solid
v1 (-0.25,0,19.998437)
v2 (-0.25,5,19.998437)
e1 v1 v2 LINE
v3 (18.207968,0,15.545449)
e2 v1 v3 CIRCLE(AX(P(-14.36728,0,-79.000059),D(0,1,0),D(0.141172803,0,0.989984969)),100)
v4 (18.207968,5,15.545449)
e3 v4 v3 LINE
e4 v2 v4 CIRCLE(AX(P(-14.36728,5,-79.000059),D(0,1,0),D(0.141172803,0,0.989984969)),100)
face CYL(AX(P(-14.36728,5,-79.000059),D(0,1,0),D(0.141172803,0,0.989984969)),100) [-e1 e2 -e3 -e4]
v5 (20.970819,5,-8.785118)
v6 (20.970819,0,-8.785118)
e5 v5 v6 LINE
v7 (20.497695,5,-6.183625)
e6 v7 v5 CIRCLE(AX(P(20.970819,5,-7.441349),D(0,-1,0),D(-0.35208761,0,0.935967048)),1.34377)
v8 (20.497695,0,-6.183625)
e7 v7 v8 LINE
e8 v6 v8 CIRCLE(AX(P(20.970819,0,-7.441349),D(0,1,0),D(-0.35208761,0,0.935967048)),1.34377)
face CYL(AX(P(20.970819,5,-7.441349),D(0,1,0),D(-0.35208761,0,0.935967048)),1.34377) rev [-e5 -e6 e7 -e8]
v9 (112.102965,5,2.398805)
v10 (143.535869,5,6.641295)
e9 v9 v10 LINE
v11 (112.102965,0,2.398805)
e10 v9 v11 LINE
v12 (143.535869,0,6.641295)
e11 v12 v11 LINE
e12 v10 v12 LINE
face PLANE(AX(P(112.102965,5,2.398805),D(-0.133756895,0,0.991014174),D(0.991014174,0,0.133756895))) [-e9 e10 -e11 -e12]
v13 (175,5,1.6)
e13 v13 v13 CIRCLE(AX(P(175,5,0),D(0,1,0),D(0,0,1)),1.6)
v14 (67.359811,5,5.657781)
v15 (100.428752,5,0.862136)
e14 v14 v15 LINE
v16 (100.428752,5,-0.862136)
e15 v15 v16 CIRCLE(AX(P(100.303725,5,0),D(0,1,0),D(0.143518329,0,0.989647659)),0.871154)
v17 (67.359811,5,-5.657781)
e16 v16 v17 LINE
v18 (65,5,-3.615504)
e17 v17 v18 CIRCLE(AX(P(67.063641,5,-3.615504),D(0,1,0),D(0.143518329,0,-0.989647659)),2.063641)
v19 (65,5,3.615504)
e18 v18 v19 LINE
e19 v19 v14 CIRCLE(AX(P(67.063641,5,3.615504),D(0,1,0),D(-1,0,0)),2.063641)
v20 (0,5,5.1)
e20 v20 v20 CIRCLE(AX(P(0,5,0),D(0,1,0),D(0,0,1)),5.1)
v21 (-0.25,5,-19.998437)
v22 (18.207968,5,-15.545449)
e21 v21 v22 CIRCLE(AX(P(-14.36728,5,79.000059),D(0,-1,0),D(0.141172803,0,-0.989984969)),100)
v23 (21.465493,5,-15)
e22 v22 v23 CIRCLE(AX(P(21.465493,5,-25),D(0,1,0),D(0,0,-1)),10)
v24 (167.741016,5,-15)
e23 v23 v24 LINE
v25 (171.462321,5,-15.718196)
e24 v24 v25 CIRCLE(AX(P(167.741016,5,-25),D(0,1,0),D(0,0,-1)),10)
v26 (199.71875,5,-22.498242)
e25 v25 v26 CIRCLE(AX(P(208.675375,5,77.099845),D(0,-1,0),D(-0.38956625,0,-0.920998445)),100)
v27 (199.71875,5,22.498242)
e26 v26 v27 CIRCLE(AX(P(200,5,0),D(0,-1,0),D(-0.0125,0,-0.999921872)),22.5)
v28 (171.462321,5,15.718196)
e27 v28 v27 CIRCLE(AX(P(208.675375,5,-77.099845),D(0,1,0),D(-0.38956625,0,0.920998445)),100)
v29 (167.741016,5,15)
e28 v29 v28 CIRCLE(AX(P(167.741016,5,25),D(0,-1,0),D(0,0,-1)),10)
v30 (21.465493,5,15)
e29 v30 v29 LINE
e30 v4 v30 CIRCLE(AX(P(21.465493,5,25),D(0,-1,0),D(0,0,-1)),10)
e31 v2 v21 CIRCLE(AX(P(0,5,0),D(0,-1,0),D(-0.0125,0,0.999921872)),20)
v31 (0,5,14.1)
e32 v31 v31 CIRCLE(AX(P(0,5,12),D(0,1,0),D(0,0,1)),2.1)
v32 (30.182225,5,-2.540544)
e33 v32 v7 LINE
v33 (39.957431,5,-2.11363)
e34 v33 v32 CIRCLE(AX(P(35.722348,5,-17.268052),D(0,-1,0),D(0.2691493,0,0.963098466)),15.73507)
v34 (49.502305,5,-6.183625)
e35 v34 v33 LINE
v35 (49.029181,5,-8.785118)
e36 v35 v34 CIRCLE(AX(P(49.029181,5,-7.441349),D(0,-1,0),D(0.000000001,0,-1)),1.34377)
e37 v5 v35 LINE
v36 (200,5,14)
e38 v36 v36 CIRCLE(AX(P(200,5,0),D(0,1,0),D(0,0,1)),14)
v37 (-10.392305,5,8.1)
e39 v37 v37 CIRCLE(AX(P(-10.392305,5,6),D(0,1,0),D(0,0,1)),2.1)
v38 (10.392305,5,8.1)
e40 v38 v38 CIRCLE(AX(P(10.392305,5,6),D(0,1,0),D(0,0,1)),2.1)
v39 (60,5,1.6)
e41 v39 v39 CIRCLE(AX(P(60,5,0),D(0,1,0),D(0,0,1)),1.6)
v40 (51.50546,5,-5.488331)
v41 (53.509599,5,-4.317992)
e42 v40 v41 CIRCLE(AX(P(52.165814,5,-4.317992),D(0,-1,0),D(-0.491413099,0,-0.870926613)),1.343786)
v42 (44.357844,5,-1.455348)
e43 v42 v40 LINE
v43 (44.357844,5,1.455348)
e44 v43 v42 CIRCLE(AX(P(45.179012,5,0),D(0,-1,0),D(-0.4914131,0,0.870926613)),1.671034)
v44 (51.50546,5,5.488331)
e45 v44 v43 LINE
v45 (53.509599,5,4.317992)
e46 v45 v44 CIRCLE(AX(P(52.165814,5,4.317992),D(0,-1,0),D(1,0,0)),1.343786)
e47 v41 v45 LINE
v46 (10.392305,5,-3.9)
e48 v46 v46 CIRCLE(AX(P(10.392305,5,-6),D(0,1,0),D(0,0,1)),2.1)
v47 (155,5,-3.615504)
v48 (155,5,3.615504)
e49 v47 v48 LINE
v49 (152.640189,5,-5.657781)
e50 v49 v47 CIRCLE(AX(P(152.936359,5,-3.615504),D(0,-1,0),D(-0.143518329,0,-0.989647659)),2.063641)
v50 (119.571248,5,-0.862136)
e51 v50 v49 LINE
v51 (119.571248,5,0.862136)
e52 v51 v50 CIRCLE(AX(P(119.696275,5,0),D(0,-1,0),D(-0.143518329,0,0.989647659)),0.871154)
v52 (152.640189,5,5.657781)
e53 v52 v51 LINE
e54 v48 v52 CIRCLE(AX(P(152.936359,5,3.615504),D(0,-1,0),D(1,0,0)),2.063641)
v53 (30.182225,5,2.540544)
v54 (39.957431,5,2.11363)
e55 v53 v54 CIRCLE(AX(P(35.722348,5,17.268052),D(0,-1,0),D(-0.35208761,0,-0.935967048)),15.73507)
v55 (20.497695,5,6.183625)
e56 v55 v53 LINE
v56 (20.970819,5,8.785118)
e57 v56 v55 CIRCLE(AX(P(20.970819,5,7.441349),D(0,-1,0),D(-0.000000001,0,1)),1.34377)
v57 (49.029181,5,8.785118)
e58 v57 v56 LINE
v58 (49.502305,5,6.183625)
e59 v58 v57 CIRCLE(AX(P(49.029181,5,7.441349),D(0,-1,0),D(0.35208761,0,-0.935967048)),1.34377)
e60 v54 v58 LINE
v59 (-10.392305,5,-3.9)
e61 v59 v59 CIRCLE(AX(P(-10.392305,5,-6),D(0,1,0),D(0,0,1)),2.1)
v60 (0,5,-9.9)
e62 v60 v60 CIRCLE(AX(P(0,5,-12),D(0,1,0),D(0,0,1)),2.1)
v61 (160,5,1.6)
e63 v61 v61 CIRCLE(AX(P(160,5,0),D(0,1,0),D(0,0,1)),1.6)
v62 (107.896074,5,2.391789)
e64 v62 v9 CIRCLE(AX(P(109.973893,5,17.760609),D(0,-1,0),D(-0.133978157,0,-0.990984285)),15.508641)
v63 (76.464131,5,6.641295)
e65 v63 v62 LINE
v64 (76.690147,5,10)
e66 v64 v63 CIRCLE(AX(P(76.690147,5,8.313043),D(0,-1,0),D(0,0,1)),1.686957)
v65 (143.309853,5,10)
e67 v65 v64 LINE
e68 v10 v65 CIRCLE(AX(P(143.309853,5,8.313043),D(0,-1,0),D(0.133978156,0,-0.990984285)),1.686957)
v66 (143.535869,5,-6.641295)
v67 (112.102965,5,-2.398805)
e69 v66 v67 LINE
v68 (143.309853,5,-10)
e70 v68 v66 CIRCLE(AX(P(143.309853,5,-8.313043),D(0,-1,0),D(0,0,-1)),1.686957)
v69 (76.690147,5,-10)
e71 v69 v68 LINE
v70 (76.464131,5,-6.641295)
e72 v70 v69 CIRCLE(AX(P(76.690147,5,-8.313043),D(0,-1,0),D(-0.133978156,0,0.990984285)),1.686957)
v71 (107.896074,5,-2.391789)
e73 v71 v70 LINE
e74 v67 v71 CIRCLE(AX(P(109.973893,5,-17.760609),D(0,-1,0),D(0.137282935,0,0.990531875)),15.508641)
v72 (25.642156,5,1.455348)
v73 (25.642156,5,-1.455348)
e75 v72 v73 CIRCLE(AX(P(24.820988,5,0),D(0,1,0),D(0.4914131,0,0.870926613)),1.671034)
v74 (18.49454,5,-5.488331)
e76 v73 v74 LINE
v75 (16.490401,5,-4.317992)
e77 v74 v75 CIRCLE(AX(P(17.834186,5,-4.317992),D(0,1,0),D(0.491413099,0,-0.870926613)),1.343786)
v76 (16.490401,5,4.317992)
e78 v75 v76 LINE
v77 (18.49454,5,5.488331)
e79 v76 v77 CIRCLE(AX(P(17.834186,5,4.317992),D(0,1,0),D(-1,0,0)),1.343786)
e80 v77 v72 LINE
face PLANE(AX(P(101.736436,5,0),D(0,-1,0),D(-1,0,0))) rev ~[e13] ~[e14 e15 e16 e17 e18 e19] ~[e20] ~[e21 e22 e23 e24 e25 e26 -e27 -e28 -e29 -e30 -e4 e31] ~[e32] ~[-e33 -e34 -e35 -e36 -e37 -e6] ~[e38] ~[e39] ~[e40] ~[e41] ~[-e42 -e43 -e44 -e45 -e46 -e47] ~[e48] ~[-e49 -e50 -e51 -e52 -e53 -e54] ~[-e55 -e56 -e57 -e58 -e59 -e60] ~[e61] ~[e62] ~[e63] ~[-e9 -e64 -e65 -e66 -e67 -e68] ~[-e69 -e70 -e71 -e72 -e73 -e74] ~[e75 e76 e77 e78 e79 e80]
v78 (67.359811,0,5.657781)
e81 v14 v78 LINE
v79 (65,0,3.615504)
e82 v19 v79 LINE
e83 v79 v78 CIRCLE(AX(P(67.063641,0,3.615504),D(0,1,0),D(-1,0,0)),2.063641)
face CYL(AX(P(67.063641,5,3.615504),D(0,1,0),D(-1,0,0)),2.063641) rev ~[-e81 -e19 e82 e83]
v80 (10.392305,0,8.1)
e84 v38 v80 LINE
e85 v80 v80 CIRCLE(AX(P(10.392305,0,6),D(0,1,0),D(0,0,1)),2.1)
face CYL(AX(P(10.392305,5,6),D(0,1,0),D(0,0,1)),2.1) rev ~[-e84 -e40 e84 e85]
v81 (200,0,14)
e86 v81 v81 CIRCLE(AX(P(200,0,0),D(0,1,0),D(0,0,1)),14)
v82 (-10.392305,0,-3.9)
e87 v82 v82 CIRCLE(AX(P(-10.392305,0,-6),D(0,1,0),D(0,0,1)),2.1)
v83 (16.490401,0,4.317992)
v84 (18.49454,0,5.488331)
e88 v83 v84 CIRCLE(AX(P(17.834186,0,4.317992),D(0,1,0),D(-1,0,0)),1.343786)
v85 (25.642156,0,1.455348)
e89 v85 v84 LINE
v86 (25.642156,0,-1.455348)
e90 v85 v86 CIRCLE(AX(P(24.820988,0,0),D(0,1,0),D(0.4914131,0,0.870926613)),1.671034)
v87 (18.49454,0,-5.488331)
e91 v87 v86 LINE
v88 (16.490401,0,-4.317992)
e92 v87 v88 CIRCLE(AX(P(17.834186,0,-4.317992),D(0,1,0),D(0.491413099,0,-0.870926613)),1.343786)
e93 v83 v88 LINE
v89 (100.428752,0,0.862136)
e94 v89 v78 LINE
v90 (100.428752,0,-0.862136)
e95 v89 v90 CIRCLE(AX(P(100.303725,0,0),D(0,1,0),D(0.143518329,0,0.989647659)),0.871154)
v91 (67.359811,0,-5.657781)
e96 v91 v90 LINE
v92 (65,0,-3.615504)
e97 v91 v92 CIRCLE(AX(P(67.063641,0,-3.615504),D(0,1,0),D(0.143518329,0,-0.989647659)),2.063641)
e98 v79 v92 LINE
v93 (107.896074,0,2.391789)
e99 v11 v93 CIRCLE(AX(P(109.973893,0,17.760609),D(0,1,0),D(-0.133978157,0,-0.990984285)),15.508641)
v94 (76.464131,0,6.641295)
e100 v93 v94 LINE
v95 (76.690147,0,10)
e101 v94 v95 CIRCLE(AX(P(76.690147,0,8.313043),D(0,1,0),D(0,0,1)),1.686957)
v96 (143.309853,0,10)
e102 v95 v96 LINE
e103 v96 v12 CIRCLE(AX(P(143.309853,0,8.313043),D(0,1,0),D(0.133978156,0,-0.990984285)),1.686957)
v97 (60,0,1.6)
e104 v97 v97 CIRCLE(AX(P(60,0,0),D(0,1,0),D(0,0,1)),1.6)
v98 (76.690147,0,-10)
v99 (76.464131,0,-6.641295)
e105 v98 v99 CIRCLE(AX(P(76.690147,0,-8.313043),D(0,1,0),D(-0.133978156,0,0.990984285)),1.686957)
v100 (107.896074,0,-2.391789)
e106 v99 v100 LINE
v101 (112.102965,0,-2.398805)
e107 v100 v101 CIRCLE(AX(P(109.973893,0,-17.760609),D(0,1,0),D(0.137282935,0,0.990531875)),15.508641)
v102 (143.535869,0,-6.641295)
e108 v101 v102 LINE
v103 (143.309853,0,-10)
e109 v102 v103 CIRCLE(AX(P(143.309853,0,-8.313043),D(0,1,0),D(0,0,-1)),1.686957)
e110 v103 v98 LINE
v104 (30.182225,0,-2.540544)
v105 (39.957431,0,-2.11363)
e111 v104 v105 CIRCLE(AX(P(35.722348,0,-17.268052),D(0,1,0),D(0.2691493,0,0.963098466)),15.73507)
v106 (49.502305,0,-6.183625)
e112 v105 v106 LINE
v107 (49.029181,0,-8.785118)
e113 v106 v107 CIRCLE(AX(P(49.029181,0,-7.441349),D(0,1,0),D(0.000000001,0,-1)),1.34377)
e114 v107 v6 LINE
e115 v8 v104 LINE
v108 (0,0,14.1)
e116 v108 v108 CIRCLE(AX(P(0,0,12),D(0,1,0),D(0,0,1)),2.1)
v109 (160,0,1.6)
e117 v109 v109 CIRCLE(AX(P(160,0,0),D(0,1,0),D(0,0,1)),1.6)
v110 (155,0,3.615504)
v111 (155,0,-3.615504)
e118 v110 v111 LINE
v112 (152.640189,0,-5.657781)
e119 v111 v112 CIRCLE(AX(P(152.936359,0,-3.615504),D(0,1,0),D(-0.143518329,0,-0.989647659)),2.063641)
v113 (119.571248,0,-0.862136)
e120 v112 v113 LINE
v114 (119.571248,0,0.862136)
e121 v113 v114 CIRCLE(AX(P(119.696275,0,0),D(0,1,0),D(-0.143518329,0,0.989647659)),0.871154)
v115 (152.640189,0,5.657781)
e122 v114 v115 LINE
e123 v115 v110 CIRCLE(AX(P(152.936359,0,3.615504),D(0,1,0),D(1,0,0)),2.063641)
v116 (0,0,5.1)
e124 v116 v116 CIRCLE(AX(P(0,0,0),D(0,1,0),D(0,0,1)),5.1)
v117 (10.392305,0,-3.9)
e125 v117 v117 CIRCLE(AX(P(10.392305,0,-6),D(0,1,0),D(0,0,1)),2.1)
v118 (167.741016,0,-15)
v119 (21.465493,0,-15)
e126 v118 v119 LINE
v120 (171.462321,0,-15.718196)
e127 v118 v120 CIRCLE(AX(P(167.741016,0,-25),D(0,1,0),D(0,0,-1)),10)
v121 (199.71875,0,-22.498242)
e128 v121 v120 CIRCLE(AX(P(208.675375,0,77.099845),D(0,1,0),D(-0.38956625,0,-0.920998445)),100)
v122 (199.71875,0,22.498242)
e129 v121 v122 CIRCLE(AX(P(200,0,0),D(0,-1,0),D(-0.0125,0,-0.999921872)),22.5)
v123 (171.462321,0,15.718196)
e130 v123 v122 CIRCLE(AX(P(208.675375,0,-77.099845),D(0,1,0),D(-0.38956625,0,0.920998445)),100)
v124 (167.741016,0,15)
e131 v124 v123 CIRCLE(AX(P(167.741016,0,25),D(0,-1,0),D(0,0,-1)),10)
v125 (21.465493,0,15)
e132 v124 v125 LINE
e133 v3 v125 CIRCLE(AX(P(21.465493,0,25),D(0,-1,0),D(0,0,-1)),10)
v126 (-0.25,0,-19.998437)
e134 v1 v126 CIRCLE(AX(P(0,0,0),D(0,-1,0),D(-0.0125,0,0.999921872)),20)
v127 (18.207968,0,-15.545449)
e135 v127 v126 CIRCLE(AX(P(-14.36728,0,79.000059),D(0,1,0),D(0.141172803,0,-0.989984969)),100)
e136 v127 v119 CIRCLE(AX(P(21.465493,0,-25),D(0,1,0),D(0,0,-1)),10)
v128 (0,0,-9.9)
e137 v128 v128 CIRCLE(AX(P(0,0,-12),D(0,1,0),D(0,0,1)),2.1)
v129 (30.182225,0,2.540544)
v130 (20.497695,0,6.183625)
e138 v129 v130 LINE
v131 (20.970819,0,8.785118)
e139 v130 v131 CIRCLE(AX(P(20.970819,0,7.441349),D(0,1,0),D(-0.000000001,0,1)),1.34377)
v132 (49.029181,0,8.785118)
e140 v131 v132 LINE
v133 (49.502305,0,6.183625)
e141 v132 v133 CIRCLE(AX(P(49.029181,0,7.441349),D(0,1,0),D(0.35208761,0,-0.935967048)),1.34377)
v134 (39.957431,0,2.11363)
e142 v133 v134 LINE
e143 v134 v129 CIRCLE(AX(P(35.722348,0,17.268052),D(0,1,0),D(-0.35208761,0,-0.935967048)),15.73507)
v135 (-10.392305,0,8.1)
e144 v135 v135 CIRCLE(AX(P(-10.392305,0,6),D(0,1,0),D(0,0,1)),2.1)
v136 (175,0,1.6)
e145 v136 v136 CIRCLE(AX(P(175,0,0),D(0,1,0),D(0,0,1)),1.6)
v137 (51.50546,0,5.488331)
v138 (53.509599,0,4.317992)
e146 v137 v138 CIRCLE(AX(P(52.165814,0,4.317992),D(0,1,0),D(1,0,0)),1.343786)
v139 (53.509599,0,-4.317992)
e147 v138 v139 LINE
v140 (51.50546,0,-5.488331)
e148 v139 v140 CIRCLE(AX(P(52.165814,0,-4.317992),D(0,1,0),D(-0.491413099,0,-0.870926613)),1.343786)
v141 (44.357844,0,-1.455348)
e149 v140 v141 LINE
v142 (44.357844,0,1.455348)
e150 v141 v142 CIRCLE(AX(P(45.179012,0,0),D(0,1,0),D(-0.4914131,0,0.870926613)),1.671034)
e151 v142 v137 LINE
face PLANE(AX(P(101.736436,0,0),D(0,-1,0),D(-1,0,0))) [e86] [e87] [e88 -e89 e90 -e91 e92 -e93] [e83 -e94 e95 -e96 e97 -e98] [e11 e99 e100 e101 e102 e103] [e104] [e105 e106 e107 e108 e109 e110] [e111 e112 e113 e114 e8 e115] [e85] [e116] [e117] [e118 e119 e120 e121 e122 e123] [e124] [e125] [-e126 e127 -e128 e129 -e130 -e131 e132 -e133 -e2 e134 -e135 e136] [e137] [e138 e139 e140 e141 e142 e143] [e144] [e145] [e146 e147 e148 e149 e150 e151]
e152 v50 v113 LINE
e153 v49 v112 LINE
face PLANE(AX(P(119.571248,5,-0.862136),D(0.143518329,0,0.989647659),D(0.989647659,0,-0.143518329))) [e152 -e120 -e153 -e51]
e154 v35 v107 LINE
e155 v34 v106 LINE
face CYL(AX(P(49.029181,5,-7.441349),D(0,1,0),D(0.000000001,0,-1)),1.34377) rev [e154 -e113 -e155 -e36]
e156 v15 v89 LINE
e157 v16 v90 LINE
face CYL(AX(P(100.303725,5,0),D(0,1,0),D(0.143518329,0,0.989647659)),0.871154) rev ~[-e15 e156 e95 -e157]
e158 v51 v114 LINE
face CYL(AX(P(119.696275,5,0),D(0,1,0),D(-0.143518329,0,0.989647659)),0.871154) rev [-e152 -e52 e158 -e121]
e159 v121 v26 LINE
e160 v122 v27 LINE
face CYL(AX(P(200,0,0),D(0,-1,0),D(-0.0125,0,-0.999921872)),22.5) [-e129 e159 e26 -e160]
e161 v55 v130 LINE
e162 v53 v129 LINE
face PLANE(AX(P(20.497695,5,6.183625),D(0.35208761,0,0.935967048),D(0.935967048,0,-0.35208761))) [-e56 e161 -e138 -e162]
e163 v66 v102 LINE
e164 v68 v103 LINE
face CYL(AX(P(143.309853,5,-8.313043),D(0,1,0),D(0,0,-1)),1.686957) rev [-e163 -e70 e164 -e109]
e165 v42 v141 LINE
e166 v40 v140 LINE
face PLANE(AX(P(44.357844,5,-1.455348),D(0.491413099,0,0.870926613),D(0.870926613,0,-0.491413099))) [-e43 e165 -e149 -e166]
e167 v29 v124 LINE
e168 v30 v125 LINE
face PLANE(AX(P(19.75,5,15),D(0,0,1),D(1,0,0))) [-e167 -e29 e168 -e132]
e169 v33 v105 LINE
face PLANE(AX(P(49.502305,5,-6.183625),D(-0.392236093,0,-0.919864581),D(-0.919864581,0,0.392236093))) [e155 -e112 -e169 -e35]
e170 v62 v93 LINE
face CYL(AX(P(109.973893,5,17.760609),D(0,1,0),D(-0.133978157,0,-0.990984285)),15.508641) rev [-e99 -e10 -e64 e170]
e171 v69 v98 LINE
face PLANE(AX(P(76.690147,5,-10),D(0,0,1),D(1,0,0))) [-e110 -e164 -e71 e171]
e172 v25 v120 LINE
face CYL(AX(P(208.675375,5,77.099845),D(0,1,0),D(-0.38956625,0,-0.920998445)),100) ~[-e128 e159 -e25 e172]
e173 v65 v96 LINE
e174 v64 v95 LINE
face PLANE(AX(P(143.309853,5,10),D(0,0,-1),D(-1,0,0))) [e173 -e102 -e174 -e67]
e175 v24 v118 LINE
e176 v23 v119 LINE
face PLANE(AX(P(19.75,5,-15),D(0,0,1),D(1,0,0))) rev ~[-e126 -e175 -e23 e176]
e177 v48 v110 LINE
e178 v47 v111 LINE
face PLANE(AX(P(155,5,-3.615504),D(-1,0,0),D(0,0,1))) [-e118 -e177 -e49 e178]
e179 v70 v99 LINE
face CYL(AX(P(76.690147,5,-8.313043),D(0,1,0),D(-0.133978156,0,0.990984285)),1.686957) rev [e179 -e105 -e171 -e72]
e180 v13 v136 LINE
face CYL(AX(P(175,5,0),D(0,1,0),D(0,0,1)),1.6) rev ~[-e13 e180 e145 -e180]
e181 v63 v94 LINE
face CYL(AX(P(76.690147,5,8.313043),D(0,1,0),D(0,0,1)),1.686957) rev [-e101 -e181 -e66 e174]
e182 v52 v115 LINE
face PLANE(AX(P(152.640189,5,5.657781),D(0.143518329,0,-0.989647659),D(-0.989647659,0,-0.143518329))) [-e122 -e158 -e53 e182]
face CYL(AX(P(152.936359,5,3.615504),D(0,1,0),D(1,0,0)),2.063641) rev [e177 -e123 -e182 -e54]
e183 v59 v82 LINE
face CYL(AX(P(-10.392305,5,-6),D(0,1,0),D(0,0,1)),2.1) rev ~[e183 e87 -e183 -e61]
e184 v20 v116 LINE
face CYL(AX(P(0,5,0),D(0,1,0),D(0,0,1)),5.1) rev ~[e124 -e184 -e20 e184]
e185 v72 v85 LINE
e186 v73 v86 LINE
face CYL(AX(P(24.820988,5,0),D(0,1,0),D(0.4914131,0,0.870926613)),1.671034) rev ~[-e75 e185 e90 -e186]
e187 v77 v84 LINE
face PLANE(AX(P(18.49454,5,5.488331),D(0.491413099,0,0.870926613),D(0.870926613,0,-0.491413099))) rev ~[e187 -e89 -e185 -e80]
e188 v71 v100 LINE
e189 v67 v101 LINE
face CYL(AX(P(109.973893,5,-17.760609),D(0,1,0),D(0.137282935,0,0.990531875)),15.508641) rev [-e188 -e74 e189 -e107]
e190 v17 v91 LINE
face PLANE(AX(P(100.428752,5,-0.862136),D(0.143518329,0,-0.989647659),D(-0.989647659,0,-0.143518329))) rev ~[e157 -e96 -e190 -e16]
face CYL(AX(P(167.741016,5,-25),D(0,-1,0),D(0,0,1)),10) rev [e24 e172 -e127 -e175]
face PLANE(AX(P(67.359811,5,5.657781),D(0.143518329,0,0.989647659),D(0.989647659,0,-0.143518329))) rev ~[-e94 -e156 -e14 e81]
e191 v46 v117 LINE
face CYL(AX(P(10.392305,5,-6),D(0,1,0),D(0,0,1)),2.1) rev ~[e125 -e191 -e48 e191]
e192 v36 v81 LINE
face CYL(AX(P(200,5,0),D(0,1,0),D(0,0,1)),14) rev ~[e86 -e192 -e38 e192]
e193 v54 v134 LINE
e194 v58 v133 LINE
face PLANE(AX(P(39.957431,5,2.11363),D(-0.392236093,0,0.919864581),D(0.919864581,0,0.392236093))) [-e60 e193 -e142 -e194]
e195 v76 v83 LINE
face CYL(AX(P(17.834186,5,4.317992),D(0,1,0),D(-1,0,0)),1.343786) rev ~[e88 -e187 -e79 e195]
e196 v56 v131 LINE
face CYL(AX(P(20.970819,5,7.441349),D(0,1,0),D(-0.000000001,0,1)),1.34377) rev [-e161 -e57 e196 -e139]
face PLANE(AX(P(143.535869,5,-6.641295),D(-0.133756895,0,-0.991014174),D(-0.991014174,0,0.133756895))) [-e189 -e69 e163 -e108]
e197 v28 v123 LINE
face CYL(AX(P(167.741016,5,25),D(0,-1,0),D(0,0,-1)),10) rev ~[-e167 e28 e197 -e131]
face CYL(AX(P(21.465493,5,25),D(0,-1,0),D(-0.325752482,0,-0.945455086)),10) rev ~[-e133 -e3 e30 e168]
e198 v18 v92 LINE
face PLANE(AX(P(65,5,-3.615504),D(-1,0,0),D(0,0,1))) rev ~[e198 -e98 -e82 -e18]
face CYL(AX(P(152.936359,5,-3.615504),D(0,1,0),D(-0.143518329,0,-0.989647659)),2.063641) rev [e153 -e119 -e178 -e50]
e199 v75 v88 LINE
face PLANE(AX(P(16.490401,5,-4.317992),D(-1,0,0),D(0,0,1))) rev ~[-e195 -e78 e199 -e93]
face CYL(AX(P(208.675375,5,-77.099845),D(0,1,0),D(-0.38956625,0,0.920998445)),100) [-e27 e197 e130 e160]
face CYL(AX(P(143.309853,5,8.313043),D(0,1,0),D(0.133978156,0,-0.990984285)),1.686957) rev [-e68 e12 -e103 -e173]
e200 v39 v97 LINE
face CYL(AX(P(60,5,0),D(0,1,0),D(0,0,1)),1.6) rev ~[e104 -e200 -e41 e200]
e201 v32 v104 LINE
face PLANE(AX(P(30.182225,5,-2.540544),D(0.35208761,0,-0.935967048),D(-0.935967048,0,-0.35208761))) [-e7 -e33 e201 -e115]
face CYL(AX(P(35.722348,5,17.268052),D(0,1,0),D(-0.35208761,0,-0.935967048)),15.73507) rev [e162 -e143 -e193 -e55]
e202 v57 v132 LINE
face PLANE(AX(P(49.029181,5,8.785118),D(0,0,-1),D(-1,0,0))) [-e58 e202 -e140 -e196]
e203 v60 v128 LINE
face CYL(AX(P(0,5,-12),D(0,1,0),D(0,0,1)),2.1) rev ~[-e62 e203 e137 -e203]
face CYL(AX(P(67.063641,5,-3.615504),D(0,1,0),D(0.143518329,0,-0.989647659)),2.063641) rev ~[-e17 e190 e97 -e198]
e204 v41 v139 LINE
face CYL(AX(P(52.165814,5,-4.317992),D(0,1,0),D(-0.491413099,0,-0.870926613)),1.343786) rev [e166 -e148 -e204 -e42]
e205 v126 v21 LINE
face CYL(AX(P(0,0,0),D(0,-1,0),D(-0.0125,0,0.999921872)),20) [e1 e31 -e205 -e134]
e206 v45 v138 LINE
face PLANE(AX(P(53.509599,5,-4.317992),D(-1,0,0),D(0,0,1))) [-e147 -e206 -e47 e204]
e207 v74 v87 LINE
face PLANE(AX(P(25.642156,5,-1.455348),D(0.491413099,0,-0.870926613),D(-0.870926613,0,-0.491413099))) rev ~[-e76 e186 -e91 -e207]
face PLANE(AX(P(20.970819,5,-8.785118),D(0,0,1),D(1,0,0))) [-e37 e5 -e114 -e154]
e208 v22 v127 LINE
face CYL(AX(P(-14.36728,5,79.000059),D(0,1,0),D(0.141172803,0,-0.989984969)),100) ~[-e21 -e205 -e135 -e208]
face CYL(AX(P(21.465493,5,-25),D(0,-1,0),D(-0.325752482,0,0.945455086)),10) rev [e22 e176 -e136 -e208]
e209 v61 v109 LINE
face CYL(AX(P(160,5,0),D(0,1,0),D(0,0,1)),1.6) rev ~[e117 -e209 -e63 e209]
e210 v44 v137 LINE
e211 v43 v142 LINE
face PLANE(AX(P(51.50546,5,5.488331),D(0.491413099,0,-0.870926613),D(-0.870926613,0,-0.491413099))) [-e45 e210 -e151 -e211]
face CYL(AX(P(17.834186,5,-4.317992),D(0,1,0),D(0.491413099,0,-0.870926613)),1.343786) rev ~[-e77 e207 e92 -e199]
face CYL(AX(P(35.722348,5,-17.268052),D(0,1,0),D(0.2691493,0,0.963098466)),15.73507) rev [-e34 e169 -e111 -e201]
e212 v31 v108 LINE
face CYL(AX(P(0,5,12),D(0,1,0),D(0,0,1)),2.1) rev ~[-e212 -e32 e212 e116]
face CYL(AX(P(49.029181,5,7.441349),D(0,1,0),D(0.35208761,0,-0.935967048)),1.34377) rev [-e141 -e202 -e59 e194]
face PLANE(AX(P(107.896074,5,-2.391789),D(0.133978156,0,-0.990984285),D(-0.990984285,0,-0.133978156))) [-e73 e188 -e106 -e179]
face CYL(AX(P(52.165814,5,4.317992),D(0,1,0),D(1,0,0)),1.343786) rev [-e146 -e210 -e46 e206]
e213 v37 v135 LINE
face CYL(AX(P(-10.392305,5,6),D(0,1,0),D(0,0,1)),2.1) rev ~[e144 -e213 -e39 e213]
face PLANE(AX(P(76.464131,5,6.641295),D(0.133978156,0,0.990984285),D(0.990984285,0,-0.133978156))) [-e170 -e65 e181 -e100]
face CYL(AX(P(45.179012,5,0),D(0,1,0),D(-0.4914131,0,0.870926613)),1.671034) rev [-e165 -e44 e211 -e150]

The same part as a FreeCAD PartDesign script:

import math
import FreeCAD as App
import Part
import Sketcher

V = App.Vector


def edges_at(feature, points):
    """Names of the edges that pass closest to the given points."""
    edges = feature.Shape.Edges
    near = lambda p: min(range(len(edges)), key=lambda i: edges[i].distToShape(Part.Vertex(*p))[0])
    return sorted({f"Edge{near(p) + 1}" for p in points})

doc = App.newDocument("Part")
body = doc.addObject("PartDesign::Body", "Body")

# Sketch on XZ plane
sketch1 = body.newObject("Sketcher::SketchObject", "Sketch")
sketch1.AttachmentSupport = (doc.getObject("XZ_Plane"), [""])
sketch1.MapMode = "FlatFace"
sketch1.addGeometry(Part.LineSegment(V(200, -22, 0), V(0, -20, 0)), False)
sketch1.addGeometry(Part.ArcOfCircle(Part.Circle(V(0, 0, 0), V(0, 0, 1), 20), math.radians(91), math.radians(269)), False)
sketch1.addGeometry(Part.LineSegment(V(0, 20, 0), V(200, 22, 0)), False)
sketch1.addGeometry(Part.ArcOfCircle(Part.Circle(V(200, 0, 0), V(0, 0, 1), 22), math.radians(-91), math.radians(91)), False)
sketch1.addConstraint(Sketcher.Constraint("Tangent", 0, 2, 1, 2))
sketch1.addConstraint(Sketcher.Constraint("Tangent", 1, 1, 2, 1))
sketch1.addConstraint(Sketcher.Constraint("Tangent", 2, 2, 3, 2))
sketch1.addConstraint(Sketcher.Constraint("Tangent", 3, 1, 0, 1))
sketch1.addConstraint(Sketcher.Constraint("Coincident", 1, 3, -1, 1))
sketch1.addConstraint(Sketcher.Constraint("PointOnObject", 3, 3, -1))
sketch1.addConstraint(Sketcher.Constraint("Radius", 1, 20.0))
sketch1.addConstraint(Sketcher.Constraint("Radius", 3, 22.5))
sketch1.addConstraint(Sketcher.Constraint("DistanceX", -1, 1, 3, 3, 200.0))
pad1 = body.newObject("PartDesign::Pad", "Pad")
pad1.Profile = sketch1
pad1.Length = 5
pad1.Reversed = True

# Sketch on XZ plane
sketch2 = body.newObject("Sketcher::SketchObject", "Sketch001")
sketch2.AttachmentSupport = (doc.getObject("XZ_Plane"), [""])
sketch2.MapMode = "FlatFace"
sketch2.AttachmentOffset = App.Placement(V(0, 0, -5), App.Rotation())
sketch2.addGeometry(Part.Circle(V(0, 0, 0), V(0, 0, 1), 5), False)
sketch2.addConstraint(Sketcher.Constraint("Coincident", 0, 3, -1, 1))
sketch2.addConstraint(Sketcher.Constraint("Diameter", 0, 10.2))
pocket1 = body.newObject("PartDesign::Pocket", "Pocket")
pocket1.Profile = sketch2
pocket1.Length = 10
pocket1.Reversed = True

# Sketch on XZ plane
sketch3 = body.newObject("Sketcher::SketchObject", "Sketch002")
sketch3.AttachmentSupport = (doc.getObject("XZ_Plane"), [""])
sketch3.MapMode = "FlatFace"
sketch3.AttachmentOffset = App.Placement(V(0, 0, -5), App.Rotation())
sketch3.addGeometry(Part.Circle(V(200, 0, 0), V(0, 0, 1), 14), False)
sketch3.addConstraint(Sketcher.Constraint("PointOnObject", 0, 3, -1))
sketch3.addConstraint(Sketcher.Constraint("Diameter", 0, 28.0))
sketch3.addConstraint(Sketcher.Constraint("DistanceX", -1, 1, 0, 3, 200.0))
pocket2 = body.newObject("PartDesign::Pocket", "Pocket001")
pocket2.Profile = sketch3
pocket2.Length = 10
pocket2.Reversed = True

# Sketch on XZ plane
sketch4 = body.newObject("Sketcher::SketchObject", "Sketch003")
sketch4.AttachmentSupport = (doc.getObject("XZ_Plane"), [""])
sketch4.MapMode = "FlatFace"
sketch4.AttachmentOffset = App.Placement(V(0, 0, -5), App.Rotation())
sketch4.addGeometry(Part.Circle(V(0, -12, 0), V(0, 0, 1), 2.1), False)
sketch4.addGeometry(Part.Circle(V(10.4, -6, 0), V(0, 0, 1), 2.1), False)
sketch4.addGeometry(Part.Circle(V(10.4, 6, 0), V(0, 0, 1), 2.1), False)
sketch4.addGeometry(Part.Circle(V(0, 12, 0), V(0, 0, 1), 2.1), False)
sketch4.addGeometry(Part.Circle(V(-10.4, 6, 0), V(0, 0, 1), 2.1), False)
sketch4.addGeometry(Part.Circle(V(-10.4, -6, 0), V(0, 0, 1), 2.1), False)
sketch4.addConstraint(Sketcher.Constraint("Equal", 0, 1))
sketch4.addConstraint(Sketcher.Constraint("Equal", 1, 2))
sketch4.addConstraint(Sketcher.Constraint("Equal", 2, 3))
sketch4.addConstraint(Sketcher.Constraint("Equal", 3, 4))
sketch4.addConstraint(Sketcher.Constraint("Equal", 4, 5))
sketch4.addConstraint(Sketcher.Constraint("Symmetric", 0, 3, 3, 3, -1, 1))
sketch4.addConstraint(Sketcher.Constraint("Symmetric", 1, 3, 4, 3, -1, 1))
sketch4.addConstraint(Sketcher.Constraint("Symmetric", 2, 3, 5, 3, -1, 1))
sketch4.addConstraint(Sketcher.Constraint("Symmetric", 2, 3, 4, 3, -2))
sketch4.addConstraint(Sketcher.Constraint("PointOnObject", 0, 3, -2))
sketch4.addConstraint(Sketcher.Constraint("Diameter", 0, 4.2))
sketch4.addConstraint(Sketcher.Constraint("DistanceY", 0, 3, -1, 1, 12.0))
sketch4.addConstraint(Sketcher.Constraint("DistanceY", 1, 3, -1, 1, 6.0))
sketch4.addConstraint(Sketcher.Constraint("DistanceX", 4, 3, 2, 3, 20.78461))
pocket3 = body.newObject("PartDesign::Pocket", "Pocket002")
pocket3.Profile = sketch4
pocket3.Length = 10
pocket3.Reversed = True

# Sketch on XZ plane
sketch5 = body.newObject("Sketcher::SketchObject", "Sketch004")
sketch5.AttachmentSupport = (doc.getObject("XZ_Plane"), [""])
sketch5.MapMode = "FlatFace"
sketch5.AttachmentOffset = App.Placement(V(0, 0, -5), App.Rotation())
sketch5.addGeometry(Part.LineSegment(V(20, -15, 0), V(170, -15, 0)), False)
sketch5.addGeometry(Part.ArcOfCircle(Part.Circle(V(209, 77, 0), V(0, 0, 1), 100), math.radians(-112.93), math.radians(-95.14)), False)
sketch5.addGeometry(Part.LineSegment(V(200, -22, 0), V(0, -20, 0)), False)
sketch5.addGeometry(Part.ArcOfCircle(Part.Circle(V(-14, 79, 0), V(0, 0, 1), 100), math.radians(-81.88), math.radians(-70.05)), False)
sketch5.addGeometry(Part.LineSegment(V(170, 15, 0), V(20, 15, 0)), False)
sketch5.addGeometry(Part.ArcOfCircle(Part.Circle(V(-14, -79, 0), V(0, 0, 1), 100), math.radians(70.05), math.radians(81.88)), False)
sketch5.addGeometry(Part.LineSegment(V(0, 20, 0), V(200, 22, 0)), False)
sketch5.addGeometry(Part.ArcOfCircle(Part.Circle(V(209, -77, 0), V(0, 0, 1), 100), math.radians(95.14), math.radians(112.93)), False)
sketch5.addConstraint(Sketcher.Constraint("Coincident", 0, 2, 1, 1))
sketch5.addConstraint(Sketcher.Constraint("Coincident", 1, 2, 2, 1))
sketch5.addConstraint(Sketcher.Constraint("Coincident", 2, 2, 3, 1))
sketch5.addConstraint(Sketcher.Constraint("Coincident", 3, 2, 0, 1))
sketch5.addConstraint(Sketcher.Constraint("Coincident", 4, 2, 5, 1))
sketch5.addConstraint(Sketcher.Constraint("Coincident", 5, 2, 6, 1))
sketch5.addConstraint(Sketcher.Constraint("Coincident", 6, 2, 7, 1))
sketch5.addConstraint(Sketcher.Constraint("Coincident", 7, 2, 4, 1))
sketch5.addConstraint(Sketcher.Constraint("Horizontal", 0))
sketch5.addConstraint(Sketcher.Constraint("Horizontal", 4))
sketch5.addConstraint(Sketcher.Constraint("Equal", 1, 3))
sketch5.addConstraint(Sketcher.Constraint("Equal", 3, 5))
sketch5.addConstraint(Sketcher.Constraint("Equal", 5, 7))
sketch5.addConstraint(Sketcher.Constraint("Symmetric", 3, 3, 5, 3, -1))
sketch5.addConstraint(Sketcher.Constraint("Symmetric", 1, 3, 7, 3, -1))
sketch5.addConstraint(Sketcher.Constraint("Vertical", 3, 2, 4, 2))
sketch5.addConstraint(Sketcher.Constraint("Vertical", 2, 2, 5, 2))
sketch5.addConstraint(Sketcher.Constraint("Vertical", 1, 2, 6, 2))
sketch5.addConstraint(Sketcher.Constraint("Radius", 1, 100.0))
sketch5.addConstraint(Sketcher.Constraint("DistanceY", 0, 2, -1, 1, 15.0))
sketch5.addConstraint(Sketcher.Constraint("DistanceX", 0, 2, 1, 2, 30.0))
sketch5.addConstraint(Sketcher.Constraint("DistanceX", 2, 2, 3, 2, 20.0))
sketch5.addConstraint(Sketcher.Constraint("DistanceX", 2, 2, -1, 1, 0.25))
sketch5.addConstraint(Sketcher.Constraint("DistanceX", 0, 1, 0, 2, 149.96875))
sketch5.addConstraint(Sketcher.Constraint("DistanceY", 1, 2, 3, 3, 101.498302))
sketch5.addConstraint(Sketcher.Constraint("DistanceX", 3, 3, -1, 1, 14.36728))
pocket4 = body.newObject("PartDesign::Pocket", "Pocket003")
pocket4.Profile = sketch5
pocket4.Type = "ThroughAll"
pocket4.Reversed = True
doc.recompute()

fillet = body.newObject("PartDesign::Fillet", "Fillet")
fillet.Base = (pocket4, edges_at(pocket4, [
    (169.719, 2.5, 15),
    (19.75, 2.5, 15),
    (19.75, 2.5, -15),
    (169.719, 2.5, -15),
]))
fillet.Radius = 10

# Sketch on XZ plane
sketch6 = body.newObject("Sketcher::SketchObject", "Sketch005")
sketch6.AttachmentSupport = (doc.getObject("XZ_Plane"), [""])
sketch6.MapMode = "FlatFace"
sketch6.AttachmentOffset = App.Placement(V(0, 0, -5), App.Rotation())
sketch6.addGeometry(Part.Circle(V(160, 0, 0), V(0, 0, 1), 1.6), False)
sketch6.addGeometry(Part.Circle(V(60, 0, 0), V(0, 0, 1), 1.6), False)
sketch6.addGeometry(Part.Circle(V(175, 0, 0), V(0, 0, 1), 1.6), False)
sketch6.addGeometry(Part.LineSegment(V(143.309853, -10, 0), V(76.690147, -10, 0)), False)
sketch6.addGeometry(Part.ArcOfCircle(Part.Circle(V(76.690147, -8.313043, 0), V(0, 0, 1), 1.686957), math.radians(97.699536), math.radians(270)), False)
sketch6.addGeometry(Part.LineSegment(V(76.464131, -6.641295, 0), V(107.896074, -2.391789, 0)), False)
sketch6.addGeometry(Part.ArcOfCircle(Part.Circle(V(109.973893, -17.760609, 0), V(0, 0, 1), 15.508641), math.radians(82.109348), math.radians(97.699536)), False)
sketch6.addGeometry(Part.LineSegment(V(112.102965, -2.398805, 0), V(143.535869, -6.641295, 0)), False)
sketch6.addGeometry(Part.ArcOfCircle(Part.Circle(V(143.309853, -8.313043, 0), V(0, 0, 1), 1.686957), math.radians(-90), math.radians(82.300464)), False)
sketch6.addGeometry(Part.LineSegment(V(65, -3.615504, 0), V(65, 3.615504, 0)), False)
sketch6.addGeometry(Part.ArcOfCircle(Part.Circle(V(67.063641, 3.615504, 0), V(0, 0, 1), 2.063641), math.radians(81.748512), math.radians(180)), False)
sketch6.addGeometry(Part.LineSegment(V(67.359811, 5.657781, 0), V(100.428752, 0.862136, 0)), False)
sketch6.addGeometry(Part.ArcOfCircle(Part.Circle(V(100.303725, 0, 0), V(0, 0, 1), 0.871154), math.radians(-81.748512), math.radians(81.748512)), False)
sketch6.addGeometry(Part.LineSegment(V(100.428752, -0.862136, 0), V(67.359811, -5.657781, 0)), False)
sketch6.addGeometry(Part.ArcOfCircle(Part.Circle(V(67.063641, -3.615504, 0), V(0, 0, 1), 2.063641), math.radians(-180), math.radians(-81.748512)), False)
sketch6.addGeometry(Part.LineSegment(V(155, 3.615504, 0), V(155, -3.615504, 0)), False)
sketch6.addGeometry(Part.ArcOfCircle(Part.Circle(V(152.936359, -3.615504, 0), V(0, 0, 1), 2.063641), math.radians(-98.251488), math.radians(0)), False)
sketch6.addGeometry(Part.LineSegment(V(152.640189, -5.657781, 0), V(119.571248, -0.862136, 0)), False)
sketch6.addGeometry(Part.ArcOfCircle(Part.Circle(V(119.696275, 0, 0), V(0, 0, 1), 0.871154), math.radians(98.251488), math.radians(261.748512)), False)
sketch6.addGeometry(Part.LineSegment(V(119.571248, 0.862136, 0), V(152.640189, 5.657781, 0)), False)
sketch6.addGeometry(Part.ArcOfCircle(Part.Circle(V(152.936359, 3.615504, 0), V(0, 0, 1), 2.063641), math.radians(0), math.radians(98.251488)), False)
sketch6.addGeometry(Part.LineSegment(V(107.896074, 2.391789, 0), V(76.464131, 6.641295, 0)), False)
sketch6.addGeometry(Part.ArcOfCircle(Part.Circle(V(76.690147, 8.313043, 0), V(0, 0, 1), 1.686957), math.radians(90), math.radians(262.300464)), False)
sketch6.addGeometry(Part.LineSegment(V(76.690147, 10, 0), V(143.309853, 10, 0)), False)
sketch6.addGeometry(Part.ArcOfCircle(Part.Circle(V(143.309853, 8.313043, 0), V(0, 0, 1), 1.686957), math.radians(-82.300464), math.radians(90)), False)
sketch6.addGeometry(Part.LineSegment(V(143.535869, 6.641295, 0), V(112.102965, 2.398805, 0)), False)
sketch6.addGeometry(Part.ArcOfCircle(Part.Circle(V(109.973893, 17.760609, 0), V(0, 0, 1), 15.508641), math.radians(-97.699536), math.radians(-82.109348)), False)
sketch6.addConstraint(Sketcher.Constraint("Coincident", 3, 2, 4, 2))
sketch6.addConstraint(Sketcher.Constraint("Coincident", 4, 1, 5, 1))
sketch6.addConstraint(Sketcher.Constraint("Coincident", 5, 2, 6, 2))
sketch6.addConstraint(Sketcher.Constraint("Coincident", 6, 1, 7, 1))
sketch6.addConstraint(Sketcher.Constraint("Coincident", 7, 2, 8, 2))
sketch6.addConstraint(Sketcher.Constraint("Coincident", 8, 1, 3, 1))
sketch6.addConstraint(Sketcher.Constraint("Coincident", 9, 2, 10, 2))
sketch6.addConstraint(Sketcher.Constraint("Coincident", 10, 1, 11, 1))
sketch6.addConstraint(Sketcher.Constraint("Coincident", 11, 2, 12, 2))
sketch6.addConstraint(Sketcher.Constraint("Coincident", 12, 1, 13, 1))
sketch6.addConstraint(Sketcher.Constraint("Coincident", 13, 2, 14, 2))
sketch6.addConstraint(Sketcher.Constraint("Coincident", 14, 1, 9, 1))
sketch6.addConstraint(Sketcher.Constraint("Coincident", 15, 2, 16, 2))
sketch6.addConstraint(Sketcher.Constraint("Coincident", 16, 1, 17, 1))
sketch6.addConstraint(Sketcher.Constraint("Coincident", 17, 2, 18, 2))
sketch6.addConstraint(Sketcher.Constraint("Coincident", 18, 1, 19, 1))
sketch6.addConstraint(Sketcher.Constraint("Coincident", 19, 2, 20, 2))
sketch6.addConstraint(Sketcher.Constraint("Coincident", 20, 1, 15, 1))
sketch6.addConstraint(Sketcher.Constraint("Coincident", 21, 2, 22, 2))
sketch6.addConstraint(Sketcher.Constraint("Coincident", 22, 1, 23, 1))
sketch6.addConstraint(Sketcher.Constraint("Coincident", 23, 2, 24, 2))
sketch6.addConstraint(Sketcher.Constraint("Coincident", 24, 1, 25, 1))
sketch6.addConstraint(Sketcher.Constraint("Coincident", 25, 2, 26, 2))
sketch6.addConstraint(Sketcher.Constraint("Coincident", 26, 1, 21, 1))
sketch6.addConstraint(Sketcher.Constraint("Horizontal", 3))
sketch6.addConstraint(Sketcher.Constraint("Vertical", 9))
sketch6.addConstraint(Sketcher.Constraint("Vertical", 15))
sketch6.addConstraint(Sketcher.Constraint("Horizontal", 23))
sketch6.addConstraint(Sketcher.Constraint("PointOnObject", 0, 3, -1))
sketch6.addConstraint(Sketcher.Constraint("PointOnObject", 1, 3, -1))
sketch6.addConstraint(Sketcher.Constraint("PointOnObject", 2, 3, -1))
sketch6.addConstraint(Sketcher.Constraint("PointOnObject", 12, 3, -1))
sketch6.addConstraint(Sketcher.Constraint("PointOnObject", 18, 3, -1))
sketch6.addConstraint(Sketcher.Constraint("Diameter", 0, 3.2))
sketch6.addConstraint(Sketcher.Constraint("Diameter", 1, 3.2))
sketch6.addConstraint(Sketcher.Constraint("Diameter", 2, 3.2))
sketch6.addConstraint(Sketcher.Constraint("DistanceX", -1, 1, 0, 3, 160.0))
sketch6.addConstraint(Sketcher.Constraint("DistanceX", -1, 1, 1, 3, 60.0))
sketch6.addConstraint(Sketcher.Constraint("DistanceX", -1, 1, 2, 3, 175.0))
sketch6.addConstraint(Sketcher.Constraint("DistanceY", 3, 2, -1, 1, 10.0))
sketch6.addConstraint(Sketcher.Constraint("DistanceX", -1, 1, 9, 2, 65.0))
sketch6.addConstraint(Sketcher.Constraint("DistanceX", -1, 1, 15, 2, 155.0))
sketch6.addConstraint(Sketcher.Constraint("DistanceY", -1, 1, 22, 1, 10.0))
sketch6.addConstraint(Sketcher.Constraint("Radius", 6, 15.508641))
sketch6.addConstraint(Sketcher.Constraint("Radius", 10, 2.063641))
sketch6.addConstraint(Sketcher.Constraint("Radius", 14, 2.063641))
sketch6.addConstraint(Sketcher.Constraint("Radius", 16, 2.063641))
sketch6.addConstraint(Sketcher.Constraint("Radius", 20, 2.063641))
sketch6.addConstraint(Sketcher.Constraint("Radius", 26, 15.508641))
sketch6.addConstraint(Sketcher.Constraint("Radius", 4, 1.686957))
sketch6.addConstraint(Sketcher.Constraint("Radius", 8, 1.686957))
sketch6.addConstraint(Sketcher.Constraint("Radius", 12, 0.871154))
sketch6.addConstraint(Sketcher.Constraint("Radius", 18, 0.871154))
sketch6.addConstraint(Sketcher.Constraint("Radius", 22, 1.686957))
sketch6.addConstraint(Sketcher.Constraint("Radius", 24, 1.686957))
sketch6.addConstraint(Sketcher.Constraint("DistanceY", 4, 1, 10, 3, 10.256799))
sketch6.addConstraint(Sketcher.Constraint("DistanceX", 5, 2, 18, 3, 11.800201))
sketch6.addConstraint(Sketcher.Constraint("DistanceY", 7, 2, 20, 3, 10.256799))
sketch6.addConstraint(Sketcher.Constraint("DistanceY", 4, 1, 9, 2, 10.256799))
sketch6.addConstraint(Sketcher.Constraint("DistanceX", 3, 2, 3, 1, 66.619706))
sketch6.addConstraint(Sketcher.Constraint("DistanceX", 23, 1, 23, 2, 66.619706))
sketch6.addConstraint(Sketcher.Constraint("DistanceY", 9, 1, 9, 2, 7.231008))
sketch6.addConstraint(Sketcher.Constraint("DistanceY", 15, 2, 15, 1, 7.231008))
sketch6.addConstraint(Sketcher.Constraint("DistanceY", 6, 3, -1, 1, 17.760609))
sketch6.addConstraint(Sketcher.Constraint("DistanceY", -1, 1, 26, 3, 17.760609))
sketch6.addConstraint(Sketcher.Constraint("DistanceX", -1, 1, 4, 1, 76.464131))
sketch6.addConstraint(Sketcher.Constraint("DistanceY", 5, 2, -1, 1, 2.391789))
sketch6.addConstraint(Sketcher.Constraint("DistanceX", -1, 1, 7, 2, 143.535869))
sketch6.addConstraint(Sketcher.Constraint("DistanceX", -1, 1, 10, 1, 67.359811))
sketch6.addConstraint(Sketcher.Constraint("DistanceY", -1, 1, 10, 1, 5.657781))
sketch6.addConstraint(Sketcher.Constraint("DistanceX", -1, 1, 11, 2, 100.428752))
sketch6.addConstraint(Sketcher.Constraint("DistanceX", -1, 1, 12, 1, 100.428752))
sketch6.addConstraint(Sketcher.Constraint("DistanceX", -1, 1, 13, 2, 67.359811))
sketch6.addConstraint(Sketcher.Constraint("DistanceY", 13, 2, -1, 1, 5.657781))
sketch6.addConstraint(Sketcher.Constraint("DistanceX", -1, 1, 16, 1, 152.640189))
sketch6.addConstraint(Sketcher.Constraint("DistanceY", 16, 1, -1, 1, 5.657781))
sketch6.addConstraint(Sketcher.Constraint("DistanceX", -1, 1, 17, 2, 119.571248))
sketch6.addConstraint(Sketcher.Constraint("DistanceX", -1, 1, 18, 1, 119.571248))
sketch6.addConstraint(Sketcher.Constraint("DistanceX", -1, 1, 19, 2, 152.640189))
sketch6.addConstraint(Sketcher.Constraint("DistanceY", -1, 1, 19, 2, 5.657781))
sketch6.addConstraint(Sketcher.Constraint("DistanceX", -1, 1, 21, 2, 76.464131))
sketch6.addConstraint(Sketcher.Constraint("DistanceX", -1, 1, 24, 1, 143.535869))
sketch6.addConstraint(Sketcher.Constraint("DistanceY", -1, 1, 26, 1, 2.391789))
sketch6.addConstraint(Sketcher.Constraint("DistanceX", 6, 3, 8, 3, 33.33596))
sketch6.addConstraint(Sketcher.Constraint("DistanceX", 12, 3, 6, 3, 9.670168))
sketch6.addConstraint(Sketcher.Constraint("DistanceX", 22, 3, 12, 3, 23.613578))
sketch6.addConstraint(Sketcher.Constraint("DistanceX", 18, 3, 24, 3, 23.613578))
sketch6.addConstraint(Sketcher.Constraint("DistanceX", 12, 3, 26, 3, 9.670168))
sketch6.addConstraint(Sketcher.Constraint("DistanceX", 5, 2, 6, 1, 4.206891))
sketch6.addConstraint(Sketcher.Constraint("DistanceY", 7, 2, 15, 2, 3.025791))
sketch6.addConstraint(Sketcher.Constraint("DistanceY", 6, 1, 25, 2, 4.797611))
sketch6.addConstraint(Sketcher.Constraint("DistanceX", -1, 1, 3, 2, 76.690147))
sketch6.addConstraint(Sketcher.Constraint("DistanceX", -1, 1, 22, 1, 76.690147))
pocket5 = body.newObject("PartDesign::Pocket", "Pocket004")
pocket5.Profile = sketch6
pocket5.Type = "ThroughAll"
pocket5.Reversed = True

# Sketch on XZ plane
sketch7 = body.newObject("Sketcher::SketchObject", "Sketch006")
sketch7.AttachmentSupport = (doc.getObject("XZ_Plane"), [""])
sketch7.MapMode = "FlatFace"
sketch7.AttachmentOffset = App.Placement(V(0, 0, -5), App.Rotation())
sketch7.addGeometry(Part.LineSegment(V(49, -8.8, 0), V(21, -8.8, 0)), False)
sketch7.addGeometry(Part.ArcOfCircle(Part.Circle(V(21, -7.4, 0), V(0, 0, 1), 1.3), math.radians(111), math.radians(270)), False)
sketch7.addGeometry(Part.LineSegment(V(20.5, -6.2, 0), V(30.2, -2.5, 0)), False)
sketch7.addGeometry(Part.ArcOfCircle(Part.Circle(V(35.7, -17.3, 0), V(0, 0, 1), 15.7), math.radians(74), math.radians(111)), False)
sketch7.addGeometry(Part.LineSegment(V(40, -2.1, 0), V(49.5, -6.2, 0)), False)
sketch7.addGeometry(Part.ArcOfCircle(Part.Circle(V(49, -7.4, 0), V(0, 0, 1), 1.3), math.radians(-90), math.radians(69)), False)
sketch7.addGeometry(Part.LineSegment(V(16.5, -4.3, 0), V(16.5, 4.3, 0)), False)
sketch7.addGeometry(Part.ArcOfCircle(Part.Circle(V(17.8, 4.3, 0), V(0, 0, 1), 1.3), math.radians(61), math.radians(180)), False)
sketch7.addGeometry(Part.LineSegment(V(18.5, 5.5, 0), V(25.6, 1.5, 0)), False)
sketch7.addGeometry(Part.ArcOfCircle(Part.Circle(V(24.8, 0, 0), V(0, 0, 1), 1.7), math.radians(-61), math.radians(61)), False)
sketch7.addGeometry(Part.LineSegment(V(25.6, -1.5, 0), V(18.5, -5.5, 0)), False)
sketch7.addGeometry(Part.ArcOfCircle(Part.Circle(V(17.8, -4.3, 0), V(0, 0, 1), 1.3), math.radians(-180), math.radians(-61)), False)
sketch7.addGeometry(Part.LineSegment(V(53.5, 4.3, 0), V(53.5, -4.3, 0)), False)
sketch7.addGeometry(Part.ArcOfCircle(Part.Circle(V(52.2, -4.3, 0), V(0, 0, 1), 1.3), math.radians(-119), math.radians(0)), False)
sketch7.addGeometry(Part.LineSegment(V(51.5, -5.5, 0), V(44.4, -1.5, 0)), False)
sketch7.addGeometry(Part.ArcOfCircle(Part.Circle(V(45.2, 0, 0), V(0, 0, 1), 1.7), math.radians(119), math.radians(241)), False)
sketch7.addGeometry(Part.LineSegment(V(44.4, 1.5, 0), V(51.5, 5.5, 0)), False)
sketch7.addGeometry(Part.ArcOfCircle(Part.Circle(V(52.2, 4.3, 0), V(0, 0, 1), 1.3), math.radians(0), math.radians(119)), False)
sketch7.addGeometry(Part.LineSegment(V(30.2, 2.5, 0), V(20.5, 6.2, 0)), False)
sketch7.addGeometry(Part.ArcOfCircle(Part.Circle(V(21, 7.4, 0), V(0, 0, 1), 1.3), math.radians(90), math.radians(249)), False)
sketch7.addGeometry(Part.LineSegment(V(21, 8.8, 0), V(49, 8.8, 0)), False)
sketch7.addGeometry(Part.ArcOfCircle(Part.Circle(V(49, 7.4, 0), V(0, 0, 1), 1.3), math.radians(-69), math.radians(90)), False)
sketch7.addGeometry(Part.LineSegment(V(49.5, 6.2, 0), V(40, 2.1, 0)), False)
sketch7.addGeometry(Part.ArcOfCircle(Part.Circle(V(35.7, 17.3, 0), V(0, 0, 1), 15.7), math.radians(-111), math.radians(-74)), False)
sketch7.addConstraint(Sketcher.Constraint("Tangent", 0, 2, 1, 2))
sketch7.addConstraint(Sketcher.Constraint("Tangent", 1, 1, 2, 1))
sketch7.addConstraint(Sketcher.Constraint("Tangent", 2, 2, 3, 2))
sketch7.addConstraint(Sketcher.Constraint("Coincident", 3, 1, 4, 1))
sketch7.addConstraint(Sketcher.Constraint("Coincident", 4, 2, 5, 2))
sketch7.addConstraint(Sketcher.Constraint("Tangent", 5, 1, 0, 1))
sketch7.addConstraint(Sketcher.Constraint("Tangent", 6, 2, 7, 2))
sketch7.addConstraint(Sketcher.Constraint("Tangent", 7, 1, 8, 1))
sketch7.addConstraint(Sketcher.Constraint("Tangent", 8, 2, 9, 2))
sketch7.addConstraint(Sketcher.Constraint("Tangent", 9, 1, 10, 1))
sketch7.addConstraint(Sketcher.Constraint("Tangent", 10, 2, 11, 2))
sketch7.addConstraint(Sketcher.Constraint("Tangent", 11, 1, 6, 1))
sketch7.addConstraint(Sketcher.Constraint("Tangent", 12, 2, 13, 2))
sketch7.addConstraint(Sketcher.Constraint("Tangent", 13, 1, 14, 1))
sketch7.addConstraint(Sketcher.Constraint("Tangent", 14, 2, 15, 2))
sketch7.addConstraint(Sketcher.Constraint("Tangent", 15, 1, 16, 1))
sketch7.addConstraint(Sketcher.Constraint("Tangent", 16, 2, 17, 2))
sketch7.addConstraint(Sketcher.Constraint("Tangent", 17, 1, 12, 1))
sketch7.addConstraint(Sketcher.Constraint("Tangent", 18, 2, 19, 2))
sketch7.addConstraint(Sketcher.Constraint("Tangent", 19, 1, 20, 1))
sketch7.addConstraint(Sketcher.Constraint("Tangent", 20, 2, 21, 2))
sketch7.addConstraint(Sketcher.Constraint("Coincident", 21, 1, 22, 1))
sketch7.addConstraint(Sketcher.Constraint("Coincident", 22, 2, 23, 2))
sketch7.addConstraint(Sketcher.Constraint("Tangent", 23, 1, 18, 1))
sketch7.addConstraint(Sketcher.Constraint("Horizontal", 0))
sketch7.addConstraint(Sketcher.Constraint("Vertical", 6))
sketch7.addConstraint(Sketcher.Constraint("Vertical", 12))
sketch7.addConstraint(Sketcher.Constraint("Horizontal", 20))
sketch7.addConstraint(Sketcher.Constraint("Equal", 1, 5))
sketch7.addConstraint(Sketcher.Constraint("Equal", 7, 11))
sketch7.addConstraint(Sketcher.Constraint("Equal", 11, 13))
sketch7.addConstraint(Sketcher.Constraint("Equal", 9, 15))
sketch7.addConstraint(Sketcher.Constraint("Equal", 13, 17))
sketch7.addConstraint(Sketcher.Constraint("Equal", 5, 19))
sketch7.addConstraint(Sketcher.Constraint("Equal", 19, 21))
sketch7.addConstraint(Sketcher.Constraint("Equal", 3, 23))
sketch7.addConstraint(Sketcher.Constraint("Symmetric", 1, 3, 19, 3, -1))
sketch7.addConstraint(Sketcher.Constraint("Symmetric", 3, 3, 23, 3, -1))
sketch7.addConstraint(Sketcher.Constraint("Symmetric", 8, 2, 9, 1, -1))
sketch7.addConstraint(Sketcher.Constraint("Symmetric", 14, 2, 15, 1, -1))
sketch7.addConstraint(Sketcher.Constraint("Symmetric", 4, 2, 21, 1, -1))
sketch7.addConstraint(Sketcher.Constraint("Parallel", 8, 14))
sketch7.addConstraint(Sketcher.Constraint("Horizontal", 11, 3, 13, 3))
sketch7.addConstraint(Sketcher.Constraint("Horizontal", 1, 1, 4, 2))
sketch7.addConstraint(Sketcher.Constraint("Vertical", 3, 1, 22, 2))
sketch7.addConstraint(Sketcher.Constraint("Radius", 1, 1.34377))
sketch7.addConstraint(Sketcher.Constraint("Radius", 3, 15.73507))
sketch7.addConstraint(Sketcher.Constraint("Radius", 7, 1.343786))
sketch7.addConstraint(Sketcher.Constraint("Radius", 9, 1.671034))
sketch7.addConstraint(Sketcher.Constraint("DistanceY", 8, 2, 19, 3, 5.986001))
sketch7.addConstraint(Sketcher.Constraint("DistanceX", 0, 2, 0, 1, 28.058361))
sketch7.addConstraint(Sketcher.Constraint("DistanceX", -1, 1, 6, 2, 16.490401))
sketch7.addConstraint(Sketcher.Constraint("DistanceX", -1, 1, 12, 2, 53.509599))
sketch7.addConstraint(Sketcher.Constraint("DistanceX", 7, 3, 9, 3, 6.986802))
sketch7.addConstraint(Sketcher.Constraint("Distance", 4, 10.376391))
sketch7.addConstraint(Sketcher.Constraint("Distance", 8, 8.206909))
sketch7.addConstraint(Sketcher.Constraint("DistanceX", -1, 1, 1, 3, 20.970819))
sketch7.addConstraint(Sketcher.Constraint("DistanceY", 3, 3, -1, 1, 17.268052))
sketch7.addConstraint(Sketcher.Constraint("DistanceY", 3, 1, -1, 1, 2.11363))
pocket6 = body.newObject("PartDesign::Pocket", "Pocket005")
pocket6.Profile = sketch7
pocket6.Length = 10
pocket6.Reversed = True

doc.recompute()
